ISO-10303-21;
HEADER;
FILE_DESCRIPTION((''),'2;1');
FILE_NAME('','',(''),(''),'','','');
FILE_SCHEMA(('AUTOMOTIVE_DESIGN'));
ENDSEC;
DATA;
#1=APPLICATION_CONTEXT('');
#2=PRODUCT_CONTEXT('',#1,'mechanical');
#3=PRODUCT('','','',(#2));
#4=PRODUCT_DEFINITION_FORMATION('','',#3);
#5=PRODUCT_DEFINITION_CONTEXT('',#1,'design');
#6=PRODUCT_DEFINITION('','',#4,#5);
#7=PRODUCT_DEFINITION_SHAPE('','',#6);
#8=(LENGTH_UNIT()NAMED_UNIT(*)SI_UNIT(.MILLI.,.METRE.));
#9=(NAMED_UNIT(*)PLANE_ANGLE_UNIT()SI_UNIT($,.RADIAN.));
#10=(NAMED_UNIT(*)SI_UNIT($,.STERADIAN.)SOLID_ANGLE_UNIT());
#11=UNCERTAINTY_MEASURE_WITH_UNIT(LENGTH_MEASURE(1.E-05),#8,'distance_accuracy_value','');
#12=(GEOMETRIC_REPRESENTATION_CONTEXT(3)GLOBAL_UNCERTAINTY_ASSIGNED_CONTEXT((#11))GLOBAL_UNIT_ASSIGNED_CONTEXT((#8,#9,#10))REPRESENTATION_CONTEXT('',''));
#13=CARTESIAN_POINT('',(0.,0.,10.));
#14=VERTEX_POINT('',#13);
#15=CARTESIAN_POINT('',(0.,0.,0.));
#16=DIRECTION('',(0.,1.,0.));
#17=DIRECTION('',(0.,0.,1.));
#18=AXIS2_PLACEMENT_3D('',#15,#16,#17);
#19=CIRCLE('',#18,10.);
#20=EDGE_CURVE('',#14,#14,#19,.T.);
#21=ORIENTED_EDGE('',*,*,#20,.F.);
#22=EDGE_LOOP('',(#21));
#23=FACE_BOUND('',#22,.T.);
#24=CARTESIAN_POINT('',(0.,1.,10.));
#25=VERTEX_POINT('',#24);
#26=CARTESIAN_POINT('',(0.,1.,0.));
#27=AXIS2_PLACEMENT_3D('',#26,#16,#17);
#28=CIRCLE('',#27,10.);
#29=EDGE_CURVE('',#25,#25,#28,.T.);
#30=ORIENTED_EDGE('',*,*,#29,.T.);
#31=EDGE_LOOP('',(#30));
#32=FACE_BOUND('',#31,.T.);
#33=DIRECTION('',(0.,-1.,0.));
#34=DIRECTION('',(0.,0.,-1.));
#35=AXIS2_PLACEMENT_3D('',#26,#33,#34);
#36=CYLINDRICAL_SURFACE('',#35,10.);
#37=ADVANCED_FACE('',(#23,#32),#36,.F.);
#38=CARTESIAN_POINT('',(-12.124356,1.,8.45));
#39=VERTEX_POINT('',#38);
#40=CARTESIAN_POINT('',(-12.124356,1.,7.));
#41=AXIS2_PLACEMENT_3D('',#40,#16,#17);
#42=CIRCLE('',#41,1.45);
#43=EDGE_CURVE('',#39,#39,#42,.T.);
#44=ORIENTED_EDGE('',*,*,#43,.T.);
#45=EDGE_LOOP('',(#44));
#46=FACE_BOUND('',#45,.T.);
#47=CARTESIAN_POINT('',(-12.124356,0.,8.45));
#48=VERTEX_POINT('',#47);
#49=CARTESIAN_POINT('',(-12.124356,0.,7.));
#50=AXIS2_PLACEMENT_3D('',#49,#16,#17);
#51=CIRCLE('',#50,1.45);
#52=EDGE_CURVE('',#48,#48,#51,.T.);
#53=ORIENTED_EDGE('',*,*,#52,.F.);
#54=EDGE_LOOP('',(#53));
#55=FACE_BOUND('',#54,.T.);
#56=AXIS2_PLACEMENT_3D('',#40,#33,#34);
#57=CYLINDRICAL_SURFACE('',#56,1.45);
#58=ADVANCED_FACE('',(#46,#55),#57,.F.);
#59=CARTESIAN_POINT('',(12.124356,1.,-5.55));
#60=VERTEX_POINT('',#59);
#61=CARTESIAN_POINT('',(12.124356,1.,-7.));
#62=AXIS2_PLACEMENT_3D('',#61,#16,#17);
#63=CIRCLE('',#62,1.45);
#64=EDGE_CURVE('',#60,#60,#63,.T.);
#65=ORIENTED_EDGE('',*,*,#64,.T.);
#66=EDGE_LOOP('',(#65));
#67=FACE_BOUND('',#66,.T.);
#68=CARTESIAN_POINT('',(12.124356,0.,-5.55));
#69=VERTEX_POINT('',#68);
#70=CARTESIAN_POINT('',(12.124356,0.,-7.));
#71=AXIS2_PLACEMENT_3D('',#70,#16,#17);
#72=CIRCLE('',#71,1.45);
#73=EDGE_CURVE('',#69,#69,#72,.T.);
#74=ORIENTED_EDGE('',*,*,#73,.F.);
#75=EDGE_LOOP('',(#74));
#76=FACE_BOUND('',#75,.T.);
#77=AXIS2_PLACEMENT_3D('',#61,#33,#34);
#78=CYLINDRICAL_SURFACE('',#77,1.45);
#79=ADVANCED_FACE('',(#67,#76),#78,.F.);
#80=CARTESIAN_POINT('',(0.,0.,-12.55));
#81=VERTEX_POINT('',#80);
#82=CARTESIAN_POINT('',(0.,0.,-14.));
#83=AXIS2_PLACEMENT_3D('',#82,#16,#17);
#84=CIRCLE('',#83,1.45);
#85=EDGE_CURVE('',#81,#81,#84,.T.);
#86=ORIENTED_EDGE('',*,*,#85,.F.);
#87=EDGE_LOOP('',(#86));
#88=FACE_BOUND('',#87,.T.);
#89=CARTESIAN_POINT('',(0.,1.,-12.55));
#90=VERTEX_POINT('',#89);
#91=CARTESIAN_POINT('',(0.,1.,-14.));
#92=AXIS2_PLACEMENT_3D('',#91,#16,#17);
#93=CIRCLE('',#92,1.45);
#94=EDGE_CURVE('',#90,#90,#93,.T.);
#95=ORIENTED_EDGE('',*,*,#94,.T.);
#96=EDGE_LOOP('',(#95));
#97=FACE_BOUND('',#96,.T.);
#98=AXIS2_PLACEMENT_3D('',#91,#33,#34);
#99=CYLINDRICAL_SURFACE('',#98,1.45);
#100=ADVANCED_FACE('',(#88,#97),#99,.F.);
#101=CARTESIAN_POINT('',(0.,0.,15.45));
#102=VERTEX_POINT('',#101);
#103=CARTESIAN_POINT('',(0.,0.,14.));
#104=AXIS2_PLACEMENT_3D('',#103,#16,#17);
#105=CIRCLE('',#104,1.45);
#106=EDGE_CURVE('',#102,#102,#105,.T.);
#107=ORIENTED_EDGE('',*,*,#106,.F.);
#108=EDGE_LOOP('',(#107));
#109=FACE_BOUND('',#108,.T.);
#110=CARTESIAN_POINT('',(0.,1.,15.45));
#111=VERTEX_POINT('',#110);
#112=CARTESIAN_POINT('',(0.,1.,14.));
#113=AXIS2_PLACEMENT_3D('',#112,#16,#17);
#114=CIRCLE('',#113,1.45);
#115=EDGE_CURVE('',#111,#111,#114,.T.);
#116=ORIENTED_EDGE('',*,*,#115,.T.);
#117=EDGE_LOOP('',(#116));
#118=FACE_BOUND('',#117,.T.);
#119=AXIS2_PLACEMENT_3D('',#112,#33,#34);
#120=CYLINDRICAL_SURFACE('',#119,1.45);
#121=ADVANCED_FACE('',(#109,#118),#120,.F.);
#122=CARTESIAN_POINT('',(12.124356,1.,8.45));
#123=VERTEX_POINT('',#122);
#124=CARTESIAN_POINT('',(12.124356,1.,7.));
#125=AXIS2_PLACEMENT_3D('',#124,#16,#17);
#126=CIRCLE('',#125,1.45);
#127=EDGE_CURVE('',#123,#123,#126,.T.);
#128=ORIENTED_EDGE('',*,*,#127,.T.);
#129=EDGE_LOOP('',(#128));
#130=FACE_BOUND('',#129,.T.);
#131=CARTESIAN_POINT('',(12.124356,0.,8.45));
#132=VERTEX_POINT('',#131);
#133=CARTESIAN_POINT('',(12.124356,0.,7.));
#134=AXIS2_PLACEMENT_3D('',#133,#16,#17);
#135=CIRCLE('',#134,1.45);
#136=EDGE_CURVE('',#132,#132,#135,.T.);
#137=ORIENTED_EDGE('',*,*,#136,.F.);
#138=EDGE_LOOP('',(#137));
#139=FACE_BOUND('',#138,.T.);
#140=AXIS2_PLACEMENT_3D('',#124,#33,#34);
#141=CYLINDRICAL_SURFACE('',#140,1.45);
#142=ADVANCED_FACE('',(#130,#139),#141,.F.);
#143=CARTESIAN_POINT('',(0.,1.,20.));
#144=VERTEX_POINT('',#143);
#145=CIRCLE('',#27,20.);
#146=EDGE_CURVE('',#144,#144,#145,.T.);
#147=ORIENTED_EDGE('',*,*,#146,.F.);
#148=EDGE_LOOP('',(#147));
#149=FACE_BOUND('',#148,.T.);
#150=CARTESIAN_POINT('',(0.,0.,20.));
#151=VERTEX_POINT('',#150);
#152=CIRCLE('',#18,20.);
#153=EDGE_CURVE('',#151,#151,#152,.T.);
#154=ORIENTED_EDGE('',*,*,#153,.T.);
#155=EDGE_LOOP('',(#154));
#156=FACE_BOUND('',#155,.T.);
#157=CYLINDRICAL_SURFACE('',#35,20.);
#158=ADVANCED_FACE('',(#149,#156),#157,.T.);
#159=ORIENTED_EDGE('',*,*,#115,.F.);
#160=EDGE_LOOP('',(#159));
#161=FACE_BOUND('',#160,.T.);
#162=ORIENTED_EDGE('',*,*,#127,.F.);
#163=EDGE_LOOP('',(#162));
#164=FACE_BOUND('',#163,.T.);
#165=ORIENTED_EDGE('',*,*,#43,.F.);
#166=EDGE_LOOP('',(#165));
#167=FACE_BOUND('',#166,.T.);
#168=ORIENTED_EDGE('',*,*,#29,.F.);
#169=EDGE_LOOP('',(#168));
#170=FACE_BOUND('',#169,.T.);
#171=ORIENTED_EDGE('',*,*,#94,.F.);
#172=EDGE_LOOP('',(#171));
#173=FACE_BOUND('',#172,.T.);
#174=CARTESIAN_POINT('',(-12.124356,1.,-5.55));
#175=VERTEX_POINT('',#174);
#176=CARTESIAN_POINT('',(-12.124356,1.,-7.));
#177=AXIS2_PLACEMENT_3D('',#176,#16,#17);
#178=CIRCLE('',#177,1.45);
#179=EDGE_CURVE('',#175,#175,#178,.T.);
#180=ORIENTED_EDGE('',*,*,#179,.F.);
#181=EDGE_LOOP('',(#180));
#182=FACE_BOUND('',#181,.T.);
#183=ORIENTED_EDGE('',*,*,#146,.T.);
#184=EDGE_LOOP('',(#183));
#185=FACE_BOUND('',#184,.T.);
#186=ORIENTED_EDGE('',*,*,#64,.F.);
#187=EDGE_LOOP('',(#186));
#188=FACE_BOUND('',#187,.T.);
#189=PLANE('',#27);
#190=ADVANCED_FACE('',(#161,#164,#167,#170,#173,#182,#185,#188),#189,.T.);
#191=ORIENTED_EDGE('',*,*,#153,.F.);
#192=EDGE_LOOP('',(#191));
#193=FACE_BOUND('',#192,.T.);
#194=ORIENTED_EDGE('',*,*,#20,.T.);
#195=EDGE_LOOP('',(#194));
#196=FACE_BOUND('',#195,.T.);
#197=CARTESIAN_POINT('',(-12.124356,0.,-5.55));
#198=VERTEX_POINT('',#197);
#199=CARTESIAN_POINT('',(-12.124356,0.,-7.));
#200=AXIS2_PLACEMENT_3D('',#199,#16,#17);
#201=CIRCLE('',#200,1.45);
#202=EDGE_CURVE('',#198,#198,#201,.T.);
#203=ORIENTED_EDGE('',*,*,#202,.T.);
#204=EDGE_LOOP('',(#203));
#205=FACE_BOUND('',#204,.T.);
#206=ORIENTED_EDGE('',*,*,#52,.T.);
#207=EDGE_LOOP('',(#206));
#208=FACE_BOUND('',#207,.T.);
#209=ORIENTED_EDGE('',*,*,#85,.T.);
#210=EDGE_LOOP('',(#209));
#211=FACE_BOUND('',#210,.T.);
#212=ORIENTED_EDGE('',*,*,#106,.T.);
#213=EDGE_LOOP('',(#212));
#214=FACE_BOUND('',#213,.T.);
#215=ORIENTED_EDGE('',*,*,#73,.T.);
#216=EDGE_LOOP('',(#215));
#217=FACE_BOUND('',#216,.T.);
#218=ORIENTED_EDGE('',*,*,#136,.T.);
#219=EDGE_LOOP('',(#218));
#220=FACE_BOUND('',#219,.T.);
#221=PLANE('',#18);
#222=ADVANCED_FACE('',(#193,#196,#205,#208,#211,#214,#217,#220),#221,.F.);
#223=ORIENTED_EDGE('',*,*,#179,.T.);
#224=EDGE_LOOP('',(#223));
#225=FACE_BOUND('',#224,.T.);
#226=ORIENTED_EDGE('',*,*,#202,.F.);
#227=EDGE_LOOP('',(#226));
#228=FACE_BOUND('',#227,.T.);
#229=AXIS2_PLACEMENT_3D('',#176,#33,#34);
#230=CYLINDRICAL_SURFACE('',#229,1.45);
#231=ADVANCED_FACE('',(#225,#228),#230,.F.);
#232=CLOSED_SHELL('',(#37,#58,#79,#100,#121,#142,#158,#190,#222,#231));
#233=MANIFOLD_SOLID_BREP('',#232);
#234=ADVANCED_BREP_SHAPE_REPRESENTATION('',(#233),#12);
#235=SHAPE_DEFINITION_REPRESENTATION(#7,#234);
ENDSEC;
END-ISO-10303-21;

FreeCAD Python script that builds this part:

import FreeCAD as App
import Part
import Sketcher

doc = App.newDocument("Part")
body = doc.addObject("PartDesign::Body", "Body")

sketch1 = doc.addObject("Sketcher::SketchObject", "Sketch")
body.addObject(sketch1)
sketch1.AttachmentSupport = (doc.XZ_Plane, [""])
sketch1.MapMode = "FlatFace"
sketch1.addGeometry([
    Part.Circle(App.Vector(0, 0, 0), App.Vector(0, 0, 1), 20),
    Part.Circle(App.Vector(-12.1, -7, 0), App.Vector(0, 0, 1), 1.4),
    Part.Circle(App.Vector(0, -14, 0), App.Vector(0, 0, 1), 1.4),
    Part.Circle(App.Vector(-12.1, 7, 0), App.Vector(0, 0, 1), 1.4),
    Part.Circle(App.Vector(12.1, -7, 0), App.Vector(0, 0, 1), 1.4),
    Part.Circle(App.Vector(0, 0, 0), App.Vector(0, 0, 1), 10),
    Part.Circle(App.Vector(0, 14, 0), App.Vector(0, 0, 1), 1.4),
    Part.Circle(App.Vector(12.1, 7, 0), App.Vector(0, 0, 1), 1.4),
], False)
sketch1.addConstraint([
    Sketcher.Constraint("Coincident", 0, 3, -1, 1),
    Sketcher.Constraint("Coincident", 5, 3, -1, 1),
    Sketcher.Constraint("Equal", 1, 2),
    Sketcher.Constraint("Equal", 2, 3),
    Sketcher.Constraint("Equal", 3, 4),
    Sketcher.Constraint("Equal", 4, 6),
    Sketcher.Constraint("Equal", 6, 7),
    Sketcher.Constraint("Symmetric", 3, 3, 4, 3, -1, 1),
    Sketcher.Constraint("Symmetric", 2, 3, 6, 3, -1, 1),
    Sketcher.Constraint("Symmetric", 1, 3, 7, 3, -1, 1),
    Sketcher.Constraint("Symmetric", 1, 3, 4, 3, -2),
    Sketcher.Constraint("PointOnObject", 2, 3, -2),
    Sketcher.Constraint("Diameter", 0, 40.0),
    Sketcher.Constraint("Diameter", 5, 20.0),
    Sketcher.Constraint("Diameter", 1, 2.9),
    Sketcher.Constraint("DistanceY", 1, 3, -1, 1, 7.0),
    Sketcher.Constraint("DistanceY", 2, 3, -1, 1, 14.0),
    Sketcher.Constraint("DistanceX", 1, 3, 4, 3, 24.248711),
])
pad1 = doc.addObject("PartDesign::Pad", "Pad")
body.addObject(pad1)
pad1.Profile = sketch1
pad1.Length = 1
pad1.Reversed = True

doc.recompute()
